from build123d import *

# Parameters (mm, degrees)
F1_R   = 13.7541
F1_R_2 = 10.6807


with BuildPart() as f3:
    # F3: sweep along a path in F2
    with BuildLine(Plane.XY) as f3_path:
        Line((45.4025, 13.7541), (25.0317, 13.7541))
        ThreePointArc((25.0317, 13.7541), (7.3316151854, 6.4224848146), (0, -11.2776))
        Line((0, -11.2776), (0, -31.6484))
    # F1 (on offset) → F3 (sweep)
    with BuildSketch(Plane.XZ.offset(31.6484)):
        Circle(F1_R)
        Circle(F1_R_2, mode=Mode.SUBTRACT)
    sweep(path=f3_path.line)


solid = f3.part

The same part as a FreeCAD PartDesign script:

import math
import FreeCAD as App
import Part
import Sketcher
Q = App.Units.Quantity

doc = App.newDocument("Part")
body = doc.addObject("PartDesign::Body", "Body")

sketch1 = body.newObject("Sketcher::SketchObject", "Sketch")
sketch1.AttachmentSupport = (doc.getObject("XZ_Plane"), [""])
sketch1.MapMode = "FlatFace"
sketch1.AttachmentOffset = App.Placement(App.Vector(0, 0, 1.246 * 25.4), App.Rotation())
sketch1.addGeometry(Part.Circle(App.Vector(0, 0, 0), App.Vector(0, 0, 1), 14), False)
sketch1.addGeometry(Part.Circle(App.Vector(0, 0, 0), App.Vector(0, 0, 1), 11), False)
sketch1.addConstraint(Sketcher.Constraint("Coincident", 0, 3, -1, 1))
sketch1.addConstraint(Sketcher.Constraint("Coincident", 1, 3, -1, 1))
sketch1.addConstraint(Sketcher.Constraint("Diameter", 0, Q("1.083 in")))
sketch1.addConstraint(Sketcher.Constraint("Diameter", 1, Q("0.841 in")))

sketch2 = body.newObject("Sketcher::SketchObject", "Sketch001")
sketch2.AttachmentSupport = (doc.getObject("XY_Plane"), [""])
sketch2.MapMode = "FlatFace"
sketch2.addGeometry(Part.LineSegment(App.Vector(45, 14, 0), App.Vector(25, 14, 0)), False)
sketch2.addGeometry(Part.ArcOfCircle(Part.Circle(App.Vector(25, -11, 0), App.Vector(0, 0, 1), 25), math.radians(90), math.radians(180)), False)
sketch2.addGeometry(Part.LineSegment(App.Vector(0, -11, 0), App.Vector(0, -32, 0)), False)
sketch2.addConstraint(Sketcher.Constraint("Tangent", 0, 2, 1, 1))
sketch2.addConstraint(Sketcher.Constraint("Tangent", 1, 2, 2, 1))
sketch2.addConstraint(Sketcher.Constraint("Horizontal", 0))
sketch2.addConstraint(Sketcher.Constraint("Vertical", 2))
sketch2.addConstraint(Sketcher.Constraint("PointOnObject", 1, 2, -2))
sketch2.addConstraint(Sketcher.Constraint("Equal", 0, 2))
sketch2.addConstraint(Sketcher.Constraint("Radius", 1, Q("0.9855 in")))
sketch2.addConstraint(Sketcher.Constraint("DistanceX", 0, 2, 0, 1, Q("0.802 in")))
sketch2.addConstraint(Sketcher.Constraint("DistanceY", 1, 3, -1, 1, Q("0.444 in")))
doc.recompute()

additivepipe = body.newObject("PartDesign::AdditivePipe", "AdditivePipe")
additivepipe.Profile = sketch1
additivepipe.Spine = (sketch2, ["Edge1", "Edge2", "Edge3"])

doc.recompute()
